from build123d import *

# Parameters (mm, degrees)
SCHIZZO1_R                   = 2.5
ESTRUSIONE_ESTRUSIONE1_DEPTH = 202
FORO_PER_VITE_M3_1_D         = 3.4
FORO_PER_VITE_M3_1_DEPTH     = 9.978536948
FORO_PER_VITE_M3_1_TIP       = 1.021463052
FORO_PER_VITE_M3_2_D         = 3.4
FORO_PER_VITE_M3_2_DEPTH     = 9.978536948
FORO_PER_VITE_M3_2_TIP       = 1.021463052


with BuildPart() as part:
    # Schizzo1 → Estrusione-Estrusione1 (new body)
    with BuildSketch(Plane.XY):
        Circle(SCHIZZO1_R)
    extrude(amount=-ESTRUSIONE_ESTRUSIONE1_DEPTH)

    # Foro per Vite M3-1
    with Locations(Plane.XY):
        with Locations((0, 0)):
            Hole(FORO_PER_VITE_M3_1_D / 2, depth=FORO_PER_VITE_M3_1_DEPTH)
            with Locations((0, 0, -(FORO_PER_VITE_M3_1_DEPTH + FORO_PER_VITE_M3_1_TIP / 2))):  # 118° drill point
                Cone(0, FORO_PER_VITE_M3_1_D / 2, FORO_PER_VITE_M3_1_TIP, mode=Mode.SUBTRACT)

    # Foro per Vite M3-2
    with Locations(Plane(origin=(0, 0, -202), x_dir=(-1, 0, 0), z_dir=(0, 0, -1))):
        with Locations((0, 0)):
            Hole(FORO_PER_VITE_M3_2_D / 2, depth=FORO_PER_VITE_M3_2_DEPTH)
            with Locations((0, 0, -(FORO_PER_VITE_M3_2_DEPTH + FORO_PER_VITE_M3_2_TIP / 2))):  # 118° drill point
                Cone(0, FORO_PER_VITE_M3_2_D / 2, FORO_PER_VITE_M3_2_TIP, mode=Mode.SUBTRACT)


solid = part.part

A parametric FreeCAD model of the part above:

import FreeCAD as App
import Part
import Sketcher

doc = App.newDocument("Part")
params = doc.addObject("Spreadsheet::Sheet", "Params")
for row, (alias, value) in enumerate([
    ("sketch1_diameter", "5 mm"),
    ("pad1_length", "202 mm"),
    ("sketch2_diameter", "3.4 mm"),
    ("hole_diameter", "3.4 mm"),
    ("hole_depth", "9.978537 mm"),
    ("sketch3_diameter", "3.4 mm"),
    ("hole2_diameter", "3.4 mm"),
    ("hole2_depth", "9.978537 mm"),
], start=1):
    params.set(f"A{row}", alias)
    params.set(f"B{row}", "=" + value)
    params.setAlias(f"B{row}", alias)

body = doc.addObject("PartDesign::Body", "Body")

sketch1 = body.newObject("Sketcher::SketchObject", "Sketch")
sketch1.AttachmentSupport = (doc.getObject("XY_Plane"), [""])
sketch1.MapMode = "FlatFace"
sketch1.addGeometry(Part.Circle(App.Vector(0, 0, 0), App.Vector(0, 0, 1), 2.5), False)
sketch1.addConstraint(Sketcher.Constraint("Coincident", 0, 3, -1, 1))
sketch1.addConstraint(Sketcher.Constraint("Diameter", 0, 5.0))
sketch1.setExpression("Constraints[1]", "Params.sketch1_diameter")
pad1 = body.newObject("PartDesign::Pad", "Pad")
pad1.Profile = sketch1
pad1.setExpression("Length", "Params.pad1_length")
pad1.Reversed = True

sketch2 = body.newObject("Sketcher::SketchObject", "Sketch001")
sketch2.AttachmentSupport = (doc.getObject("XY_Plane"), [""])
sketch2.MapMode = "FlatFace"
sketch2.addGeometry(Part.Circle(App.Vector(0, 0, 0), App.Vector(0, 0, 1), 1.7), False)
sketch2.addConstraint(Sketcher.Constraint("Coincident", 0, 3, -1, 1))
sketch2.addConstraint(Sketcher.Constraint("Diameter", 0, 3.4))
sketch2.setExpression("Constraints[1]", "Params.sketch2_diameter")
doc.recompute()
hole = body.newObject("PartDesign::Hole", "Hole")
hole.Profile = sketch2
hole.ThreadType = "None"
hole.setExpression("Diameter", "Params.hole_diameter")
hole.DepthType = "Dimension"
hole.setExpression("Depth", "Params.hole_depth")
hole.DrillPoint = "Angled"
hole.DrillPointAngle = 118

sketch3 = body.newObject("Sketcher::SketchObject", "Sketch002")
sketch3.AttachmentSupport = (doc.getObject("XY_Plane"), [""])
sketch3.MapMode = "FlatFace"
sketch3.AttachmentOffset = App.Placement(App.Vector(0, 0, -202), App.Rotation())
sketch3.addGeometry(Part.Circle(App.Vector(0, 0, 0), App.Vector(0, 0, 1), 1.7), False)
sketch3.addConstraint(Sketcher.Constraint("Coincident", 0, 3, -1, 1))
sketch3.addConstraint(Sketcher.Constraint("Diameter", 0, 3.4))
sketch3.setExpression("Constraints[1]", "Params.sketch3_diameter")
doc.recompute()
hole2 = body.newObject("PartDesign::Hole", "Hole001")
hole2.Profile = sketch3
hole2.ThreadType = "None"
hole2.setExpression("Diameter", "Params.hole2_diameter")
hole2.DepthType = "Dimension"
hole2.setExpression("Depth", "Params.hole2_depth")
hole2.DrillPoint = "Angled"
hole2.DrillPointAngle = 118
hole2.Reversed = True

doc.recompute()
